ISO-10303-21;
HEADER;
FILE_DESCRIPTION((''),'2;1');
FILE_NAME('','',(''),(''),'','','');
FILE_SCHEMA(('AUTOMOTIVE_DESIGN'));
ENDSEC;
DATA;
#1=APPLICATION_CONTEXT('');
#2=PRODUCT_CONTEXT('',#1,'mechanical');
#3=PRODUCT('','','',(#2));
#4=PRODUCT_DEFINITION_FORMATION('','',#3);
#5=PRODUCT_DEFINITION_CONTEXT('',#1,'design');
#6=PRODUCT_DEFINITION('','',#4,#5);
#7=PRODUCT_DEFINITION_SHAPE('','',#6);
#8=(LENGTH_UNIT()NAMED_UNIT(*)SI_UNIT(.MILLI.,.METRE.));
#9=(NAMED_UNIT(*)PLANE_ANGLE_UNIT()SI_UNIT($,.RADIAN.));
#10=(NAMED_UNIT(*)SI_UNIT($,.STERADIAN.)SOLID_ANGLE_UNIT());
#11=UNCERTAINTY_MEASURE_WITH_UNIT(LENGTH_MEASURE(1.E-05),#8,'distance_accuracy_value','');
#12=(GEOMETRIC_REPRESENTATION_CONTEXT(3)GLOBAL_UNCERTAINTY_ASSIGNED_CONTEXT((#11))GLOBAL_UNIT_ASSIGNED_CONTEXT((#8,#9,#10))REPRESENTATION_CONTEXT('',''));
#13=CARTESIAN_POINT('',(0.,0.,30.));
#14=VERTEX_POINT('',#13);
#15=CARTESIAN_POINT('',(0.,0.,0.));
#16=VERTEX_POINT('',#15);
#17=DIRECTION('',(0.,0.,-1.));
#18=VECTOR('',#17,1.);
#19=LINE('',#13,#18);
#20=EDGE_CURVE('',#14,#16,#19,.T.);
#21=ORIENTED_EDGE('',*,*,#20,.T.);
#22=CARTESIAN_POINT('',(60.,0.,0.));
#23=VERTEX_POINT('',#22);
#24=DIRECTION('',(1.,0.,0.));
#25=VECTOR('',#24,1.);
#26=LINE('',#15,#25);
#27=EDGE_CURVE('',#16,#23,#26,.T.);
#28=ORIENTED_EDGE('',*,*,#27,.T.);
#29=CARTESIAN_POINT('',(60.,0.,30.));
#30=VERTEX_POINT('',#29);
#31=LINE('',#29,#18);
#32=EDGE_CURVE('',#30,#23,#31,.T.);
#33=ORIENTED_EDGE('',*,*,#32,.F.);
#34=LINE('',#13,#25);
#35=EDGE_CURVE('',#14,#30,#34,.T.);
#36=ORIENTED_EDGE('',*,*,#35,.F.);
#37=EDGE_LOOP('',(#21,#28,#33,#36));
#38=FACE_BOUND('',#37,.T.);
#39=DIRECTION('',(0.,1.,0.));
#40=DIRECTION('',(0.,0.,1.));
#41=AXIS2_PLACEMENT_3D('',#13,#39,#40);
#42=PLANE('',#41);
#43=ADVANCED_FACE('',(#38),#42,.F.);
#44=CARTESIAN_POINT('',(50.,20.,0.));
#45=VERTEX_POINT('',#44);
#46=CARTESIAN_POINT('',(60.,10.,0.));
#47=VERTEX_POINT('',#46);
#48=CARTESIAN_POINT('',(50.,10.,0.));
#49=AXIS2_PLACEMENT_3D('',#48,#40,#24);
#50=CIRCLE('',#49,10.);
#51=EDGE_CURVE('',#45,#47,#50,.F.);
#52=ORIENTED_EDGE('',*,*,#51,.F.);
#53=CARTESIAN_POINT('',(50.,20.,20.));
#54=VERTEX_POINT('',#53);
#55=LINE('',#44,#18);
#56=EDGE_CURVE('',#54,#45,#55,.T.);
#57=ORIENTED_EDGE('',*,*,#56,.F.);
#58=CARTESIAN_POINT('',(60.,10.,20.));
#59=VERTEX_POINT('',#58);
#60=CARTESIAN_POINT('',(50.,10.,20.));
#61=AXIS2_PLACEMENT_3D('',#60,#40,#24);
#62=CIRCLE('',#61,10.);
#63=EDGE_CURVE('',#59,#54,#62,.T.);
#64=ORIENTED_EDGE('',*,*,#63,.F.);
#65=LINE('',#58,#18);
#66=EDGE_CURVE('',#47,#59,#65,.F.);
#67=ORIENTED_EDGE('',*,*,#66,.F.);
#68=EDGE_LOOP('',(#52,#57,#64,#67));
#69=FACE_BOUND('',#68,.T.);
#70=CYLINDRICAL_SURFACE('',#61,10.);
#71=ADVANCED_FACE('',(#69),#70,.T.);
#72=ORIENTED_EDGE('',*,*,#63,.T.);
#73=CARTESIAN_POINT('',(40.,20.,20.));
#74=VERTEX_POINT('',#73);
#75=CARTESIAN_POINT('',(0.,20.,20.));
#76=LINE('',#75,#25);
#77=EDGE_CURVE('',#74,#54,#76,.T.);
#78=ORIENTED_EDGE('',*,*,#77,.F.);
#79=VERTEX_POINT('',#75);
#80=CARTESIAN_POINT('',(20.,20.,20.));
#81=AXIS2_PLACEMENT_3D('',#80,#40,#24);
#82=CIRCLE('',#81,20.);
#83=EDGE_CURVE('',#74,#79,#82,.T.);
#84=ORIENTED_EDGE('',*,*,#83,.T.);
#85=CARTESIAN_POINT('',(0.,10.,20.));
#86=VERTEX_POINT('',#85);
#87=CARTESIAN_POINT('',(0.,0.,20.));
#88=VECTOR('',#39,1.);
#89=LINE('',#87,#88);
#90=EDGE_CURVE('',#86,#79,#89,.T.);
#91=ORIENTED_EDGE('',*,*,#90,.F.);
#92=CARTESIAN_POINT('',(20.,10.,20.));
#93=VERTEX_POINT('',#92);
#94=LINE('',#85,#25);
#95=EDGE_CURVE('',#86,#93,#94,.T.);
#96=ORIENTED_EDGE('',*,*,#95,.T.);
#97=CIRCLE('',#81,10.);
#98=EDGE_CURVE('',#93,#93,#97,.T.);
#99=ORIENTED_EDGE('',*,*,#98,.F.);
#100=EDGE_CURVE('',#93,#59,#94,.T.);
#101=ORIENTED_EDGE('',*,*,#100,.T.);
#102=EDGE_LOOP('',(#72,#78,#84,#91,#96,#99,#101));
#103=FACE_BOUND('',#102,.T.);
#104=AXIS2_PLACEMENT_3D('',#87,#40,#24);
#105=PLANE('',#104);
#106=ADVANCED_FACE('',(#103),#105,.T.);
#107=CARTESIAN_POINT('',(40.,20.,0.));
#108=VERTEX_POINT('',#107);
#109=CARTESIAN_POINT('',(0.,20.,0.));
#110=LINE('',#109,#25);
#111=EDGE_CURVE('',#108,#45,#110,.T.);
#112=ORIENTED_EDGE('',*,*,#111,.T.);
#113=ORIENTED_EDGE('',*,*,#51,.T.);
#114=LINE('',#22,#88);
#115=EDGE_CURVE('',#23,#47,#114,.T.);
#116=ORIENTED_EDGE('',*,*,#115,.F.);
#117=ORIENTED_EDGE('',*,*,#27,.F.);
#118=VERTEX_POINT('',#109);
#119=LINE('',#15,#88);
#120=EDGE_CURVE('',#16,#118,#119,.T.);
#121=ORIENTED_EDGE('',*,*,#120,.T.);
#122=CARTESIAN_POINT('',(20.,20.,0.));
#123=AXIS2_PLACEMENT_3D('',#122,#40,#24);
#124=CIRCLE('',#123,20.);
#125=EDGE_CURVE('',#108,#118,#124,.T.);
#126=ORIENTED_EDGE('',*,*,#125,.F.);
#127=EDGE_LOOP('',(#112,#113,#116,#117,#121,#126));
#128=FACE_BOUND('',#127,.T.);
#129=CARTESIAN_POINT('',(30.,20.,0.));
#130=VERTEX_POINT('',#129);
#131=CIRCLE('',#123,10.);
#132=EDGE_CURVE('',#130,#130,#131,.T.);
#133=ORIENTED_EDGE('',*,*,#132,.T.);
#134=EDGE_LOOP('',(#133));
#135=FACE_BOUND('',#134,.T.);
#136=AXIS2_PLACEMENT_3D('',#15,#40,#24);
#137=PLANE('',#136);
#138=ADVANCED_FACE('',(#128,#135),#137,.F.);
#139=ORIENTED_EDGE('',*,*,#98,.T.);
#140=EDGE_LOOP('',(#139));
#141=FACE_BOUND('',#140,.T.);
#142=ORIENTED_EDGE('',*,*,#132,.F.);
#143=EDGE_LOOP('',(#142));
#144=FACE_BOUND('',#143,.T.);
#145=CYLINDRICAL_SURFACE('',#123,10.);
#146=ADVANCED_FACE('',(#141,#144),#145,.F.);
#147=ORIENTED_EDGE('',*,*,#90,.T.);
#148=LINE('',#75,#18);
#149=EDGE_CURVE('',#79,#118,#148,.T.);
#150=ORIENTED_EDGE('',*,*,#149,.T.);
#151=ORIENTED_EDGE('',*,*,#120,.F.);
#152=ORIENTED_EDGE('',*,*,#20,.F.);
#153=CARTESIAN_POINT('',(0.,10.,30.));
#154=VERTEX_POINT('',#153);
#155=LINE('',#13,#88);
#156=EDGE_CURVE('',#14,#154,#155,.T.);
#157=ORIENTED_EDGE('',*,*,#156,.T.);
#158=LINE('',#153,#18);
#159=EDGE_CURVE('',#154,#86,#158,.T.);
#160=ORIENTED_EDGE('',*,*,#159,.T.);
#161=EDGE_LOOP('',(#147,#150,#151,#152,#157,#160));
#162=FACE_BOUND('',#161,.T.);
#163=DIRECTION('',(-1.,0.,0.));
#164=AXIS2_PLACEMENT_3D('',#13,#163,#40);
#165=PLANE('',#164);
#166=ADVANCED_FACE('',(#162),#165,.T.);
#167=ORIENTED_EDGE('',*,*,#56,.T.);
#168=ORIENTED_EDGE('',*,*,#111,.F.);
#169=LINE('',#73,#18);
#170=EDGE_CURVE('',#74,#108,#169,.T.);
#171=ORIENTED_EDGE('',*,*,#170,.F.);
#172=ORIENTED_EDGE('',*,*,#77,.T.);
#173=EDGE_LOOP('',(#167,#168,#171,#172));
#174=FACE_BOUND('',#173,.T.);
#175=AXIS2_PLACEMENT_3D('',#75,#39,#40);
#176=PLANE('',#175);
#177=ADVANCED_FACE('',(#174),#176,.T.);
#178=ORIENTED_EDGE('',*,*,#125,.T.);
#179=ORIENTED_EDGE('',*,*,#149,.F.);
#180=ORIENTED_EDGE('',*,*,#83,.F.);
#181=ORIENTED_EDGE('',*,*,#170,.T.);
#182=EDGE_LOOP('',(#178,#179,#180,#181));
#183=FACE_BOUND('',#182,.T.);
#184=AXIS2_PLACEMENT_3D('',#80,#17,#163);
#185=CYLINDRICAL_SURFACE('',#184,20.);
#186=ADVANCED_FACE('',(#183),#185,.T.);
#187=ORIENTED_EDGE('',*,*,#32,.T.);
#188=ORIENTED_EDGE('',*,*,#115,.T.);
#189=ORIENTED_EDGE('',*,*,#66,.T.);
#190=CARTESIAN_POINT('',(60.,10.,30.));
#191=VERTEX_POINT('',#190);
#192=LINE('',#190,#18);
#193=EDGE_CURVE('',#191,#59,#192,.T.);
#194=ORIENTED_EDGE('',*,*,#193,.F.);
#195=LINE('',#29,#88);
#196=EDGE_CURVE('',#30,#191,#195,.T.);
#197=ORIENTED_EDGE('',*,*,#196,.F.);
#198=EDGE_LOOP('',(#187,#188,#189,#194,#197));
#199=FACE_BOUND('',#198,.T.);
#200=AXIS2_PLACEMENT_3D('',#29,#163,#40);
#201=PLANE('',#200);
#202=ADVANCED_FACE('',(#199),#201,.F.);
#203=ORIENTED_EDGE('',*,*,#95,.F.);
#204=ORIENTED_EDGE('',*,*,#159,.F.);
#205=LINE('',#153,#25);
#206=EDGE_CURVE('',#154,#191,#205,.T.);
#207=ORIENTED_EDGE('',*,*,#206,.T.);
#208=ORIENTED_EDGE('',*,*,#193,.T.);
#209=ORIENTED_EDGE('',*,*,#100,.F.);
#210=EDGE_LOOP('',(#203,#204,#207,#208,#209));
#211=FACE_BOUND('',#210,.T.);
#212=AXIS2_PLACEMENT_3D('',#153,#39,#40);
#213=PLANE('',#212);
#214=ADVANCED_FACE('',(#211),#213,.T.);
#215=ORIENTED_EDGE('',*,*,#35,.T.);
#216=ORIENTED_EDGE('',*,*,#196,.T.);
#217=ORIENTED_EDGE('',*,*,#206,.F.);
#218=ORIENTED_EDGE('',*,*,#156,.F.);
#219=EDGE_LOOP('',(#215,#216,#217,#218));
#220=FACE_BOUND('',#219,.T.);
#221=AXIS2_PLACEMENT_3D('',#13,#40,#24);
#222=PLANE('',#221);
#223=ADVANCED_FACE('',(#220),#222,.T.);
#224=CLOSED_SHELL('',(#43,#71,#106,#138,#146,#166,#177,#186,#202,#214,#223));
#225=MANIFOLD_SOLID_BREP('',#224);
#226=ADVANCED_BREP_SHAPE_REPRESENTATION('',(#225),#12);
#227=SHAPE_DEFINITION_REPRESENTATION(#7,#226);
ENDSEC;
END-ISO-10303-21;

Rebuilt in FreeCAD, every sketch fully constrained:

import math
import FreeCAD as App
import Part
import Sketcher

V = App.Vector


def edges_at(feature, points):
    """Names of the edges that pass closest to the given points."""
    edges = feature.Shape.Edges
    near = lambda p: min(range(len(edges)), key=lambda i: edges[i].distToShape(Part.Vertex(*p))[0])
    return sorted({f"Edge{near(p) + 1}" for p in points})


def add_polygon(sketch, points):
    """Adds a closed chain of lines whose ends are joined by coincident constraints."""
    first, n = sketch.GeometryCount, len(points)
    for a, b in zip(points, points[1:] + points[:1]):
        sketch.addGeometry(Part.LineSegment(App.Vector(*a, 0), App.Vector(*b, 0)), False)
    for i in range(n):
        sketch.addConstraint(Sketcher.Constraint("Coincident", first + i, 2, first + (i + 1) % n, 1))

doc = App.newDocument("Part")
body = doc.addObject("PartDesign::Body", "Body")

# Sketch on XY plane
sketch1 = doc.addObject("Sketcher::SketchObject", "Sketch")
body.addObject(sketch1)
sketch1.AttachmentSupport = (doc.XY_Plane, [""])
sketch1.MapMode = "FlatFace"
add_polygon(sketch1, [(0, 10), (0, 0), (60, 0), (60, 10)])  # lines 0-3
sketch1.addConstraint(Sketcher.Constraint("Vertical", 0))
sketch1.addConstraint(Sketcher.Constraint("Horizontal", 1))
sketch1.addConstraint(Sketcher.Constraint("Vertical", 2))
sketch1.addConstraint(Sketcher.Constraint("Horizontal", 3))
sketch1.addConstraint(Sketcher.Constraint("Coincident", 0, 2, -1, 1))
sketch1.addConstraint(Sketcher.Constraint("DistanceX", 1, 1, 1, 2, 60.0))
sketch1.addConstraint(Sketcher.Constraint("DistanceY", 0, 2, 0, 1, 10.0))
pad1 = doc.addObject("PartDesign::Pad", "Pad")
body.addObject(pad1)
pad1.Profile = sketch1
pad1.Length = 30

# Sketch on XY plane
sketch2 = doc.addObject("Sketcher::SketchObject", "Sketch001")
body.addObject(sketch2)
sketch2.AttachmentSupport = (doc.XY_Plane, [""])
sketch2.MapMode = "FlatFace"
sketch2.addGeometry(Part.LineSegment(V(60, 20, 0), V(40, 20, 0)), False)
sketch2.addGeometry(Part.ArcOfCircle(Part.Circle(V(20, 20, 0), V(0, 0, 1), 20), math.radians(0), math.radians(180)), False)
sketch2.addGeometry(Part.LineSegment(V(0, 20, 0), V(0, 10, 0)), False)
sketch2.addGeometry(Part.LineSegment(V(0, 10, 0), V(60, 10, 0)), False)
sketch2.addGeometry(Part.LineSegment(V(60, 10, 0), V(60, 20, 0)), False)
sketch2.addGeometry(Part.Circle(V(20, 20, 0), V(0, 0, 1), 5), False)
sketch2.addConstraint(Sketcher.Constraint("Coincident", 0, 2, 1, 1))
sketch2.addConstraint(Sketcher.Constraint("Tangent", 1, 2, 2, 1))
sketch2.addConstraint(Sketcher.Constraint("Coincident", 2, 2, 3, 1))
sketch2.addConstraint(Sketcher.Constraint("Coincident", 3, 2, 4, 1))
sketch2.addConstraint(Sketcher.Constraint("Coincident", 4, 2, 0, 1))
sketch2.addConstraint(Sketcher.Constraint("Horizontal", 0))
sketch2.addConstraint(Sketcher.Constraint("Vertical", 2))
sketch2.addConstraint(Sketcher.Constraint("Horizontal", 3))
sketch2.addConstraint(Sketcher.Constraint("Vertical", 4))
sketch2.addConstraint(Sketcher.Constraint("Coincident", 5, 3, 1, 3))
sketch2.addConstraint(Sketcher.Constraint("PointOnObject", 1, 2, -2))
sketch2.addConstraint(Sketcher.Constraint("Horizontal", 5, 3, 0, 2))
sketch2.addConstraint(Sketcher.Constraint("Diameter", 5, 10.0))
sketch2.addConstraint(Sketcher.Constraint("Radius", 1, 20.0))
sketch2.addConstraint(Sketcher.Constraint("DistanceX", 0, 2, 0, 1, 20.0))
sketch2.addConstraint(Sketcher.Constraint("DistanceY", 2, 2, 2, 1, 10.0))
sketch2.addConstraint(Sketcher.Constraint("DistanceY", -1, 1, 1, 3, 20.0))
pad2 = doc.addObject("PartDesign::Pad", "Pad001")
body.addObject(pad2)
pad2.Profile = sketch2
pad2.Length = 20
doc.recompute()

fillet = doc.addObject("PartDesign::Fillet", "Fillet")
body.addObject(fillet)
fillet.Base = (pad2, edges_at(pad2, [(60, 20, 10)]))
fillet.Radius = 10

# Sketch on XY plane
sketch3 = doc.addObject("Sketcher::SketchObject", "Sketch002")
body.addObject(sketch3)
sketch3.AttachmentSupport = (doc.XY_Plane, [""])
sketch3.MapMode = "FlatFace"
sketch3.AttachmentOffset = App.Placement(V(0, 0, 20), App.Rotation())
sketch3.addGeometry(Part.Circle(V(20, 20, 0), V(0, 0, 1), 10), False)
sketch3.addConstraint(Sketcher.Constraint("Diameter", 0, 20.0))
sketch3.addConstraint(Sketcher.Constraint("DistanceX", -1, 1, 0, 3, 20.0))
sketch3.addConstraint(Sketcher.Constraint("DistanceY", -1, 1, 0, 3, 20.0))
pocket1 = doc.addObject("PartDesign::Pocket", "Pocket")
body.addObject(pocket1)
pocket1.Profile = sketch3
pocket1.Length = 20

doc.recompute()
